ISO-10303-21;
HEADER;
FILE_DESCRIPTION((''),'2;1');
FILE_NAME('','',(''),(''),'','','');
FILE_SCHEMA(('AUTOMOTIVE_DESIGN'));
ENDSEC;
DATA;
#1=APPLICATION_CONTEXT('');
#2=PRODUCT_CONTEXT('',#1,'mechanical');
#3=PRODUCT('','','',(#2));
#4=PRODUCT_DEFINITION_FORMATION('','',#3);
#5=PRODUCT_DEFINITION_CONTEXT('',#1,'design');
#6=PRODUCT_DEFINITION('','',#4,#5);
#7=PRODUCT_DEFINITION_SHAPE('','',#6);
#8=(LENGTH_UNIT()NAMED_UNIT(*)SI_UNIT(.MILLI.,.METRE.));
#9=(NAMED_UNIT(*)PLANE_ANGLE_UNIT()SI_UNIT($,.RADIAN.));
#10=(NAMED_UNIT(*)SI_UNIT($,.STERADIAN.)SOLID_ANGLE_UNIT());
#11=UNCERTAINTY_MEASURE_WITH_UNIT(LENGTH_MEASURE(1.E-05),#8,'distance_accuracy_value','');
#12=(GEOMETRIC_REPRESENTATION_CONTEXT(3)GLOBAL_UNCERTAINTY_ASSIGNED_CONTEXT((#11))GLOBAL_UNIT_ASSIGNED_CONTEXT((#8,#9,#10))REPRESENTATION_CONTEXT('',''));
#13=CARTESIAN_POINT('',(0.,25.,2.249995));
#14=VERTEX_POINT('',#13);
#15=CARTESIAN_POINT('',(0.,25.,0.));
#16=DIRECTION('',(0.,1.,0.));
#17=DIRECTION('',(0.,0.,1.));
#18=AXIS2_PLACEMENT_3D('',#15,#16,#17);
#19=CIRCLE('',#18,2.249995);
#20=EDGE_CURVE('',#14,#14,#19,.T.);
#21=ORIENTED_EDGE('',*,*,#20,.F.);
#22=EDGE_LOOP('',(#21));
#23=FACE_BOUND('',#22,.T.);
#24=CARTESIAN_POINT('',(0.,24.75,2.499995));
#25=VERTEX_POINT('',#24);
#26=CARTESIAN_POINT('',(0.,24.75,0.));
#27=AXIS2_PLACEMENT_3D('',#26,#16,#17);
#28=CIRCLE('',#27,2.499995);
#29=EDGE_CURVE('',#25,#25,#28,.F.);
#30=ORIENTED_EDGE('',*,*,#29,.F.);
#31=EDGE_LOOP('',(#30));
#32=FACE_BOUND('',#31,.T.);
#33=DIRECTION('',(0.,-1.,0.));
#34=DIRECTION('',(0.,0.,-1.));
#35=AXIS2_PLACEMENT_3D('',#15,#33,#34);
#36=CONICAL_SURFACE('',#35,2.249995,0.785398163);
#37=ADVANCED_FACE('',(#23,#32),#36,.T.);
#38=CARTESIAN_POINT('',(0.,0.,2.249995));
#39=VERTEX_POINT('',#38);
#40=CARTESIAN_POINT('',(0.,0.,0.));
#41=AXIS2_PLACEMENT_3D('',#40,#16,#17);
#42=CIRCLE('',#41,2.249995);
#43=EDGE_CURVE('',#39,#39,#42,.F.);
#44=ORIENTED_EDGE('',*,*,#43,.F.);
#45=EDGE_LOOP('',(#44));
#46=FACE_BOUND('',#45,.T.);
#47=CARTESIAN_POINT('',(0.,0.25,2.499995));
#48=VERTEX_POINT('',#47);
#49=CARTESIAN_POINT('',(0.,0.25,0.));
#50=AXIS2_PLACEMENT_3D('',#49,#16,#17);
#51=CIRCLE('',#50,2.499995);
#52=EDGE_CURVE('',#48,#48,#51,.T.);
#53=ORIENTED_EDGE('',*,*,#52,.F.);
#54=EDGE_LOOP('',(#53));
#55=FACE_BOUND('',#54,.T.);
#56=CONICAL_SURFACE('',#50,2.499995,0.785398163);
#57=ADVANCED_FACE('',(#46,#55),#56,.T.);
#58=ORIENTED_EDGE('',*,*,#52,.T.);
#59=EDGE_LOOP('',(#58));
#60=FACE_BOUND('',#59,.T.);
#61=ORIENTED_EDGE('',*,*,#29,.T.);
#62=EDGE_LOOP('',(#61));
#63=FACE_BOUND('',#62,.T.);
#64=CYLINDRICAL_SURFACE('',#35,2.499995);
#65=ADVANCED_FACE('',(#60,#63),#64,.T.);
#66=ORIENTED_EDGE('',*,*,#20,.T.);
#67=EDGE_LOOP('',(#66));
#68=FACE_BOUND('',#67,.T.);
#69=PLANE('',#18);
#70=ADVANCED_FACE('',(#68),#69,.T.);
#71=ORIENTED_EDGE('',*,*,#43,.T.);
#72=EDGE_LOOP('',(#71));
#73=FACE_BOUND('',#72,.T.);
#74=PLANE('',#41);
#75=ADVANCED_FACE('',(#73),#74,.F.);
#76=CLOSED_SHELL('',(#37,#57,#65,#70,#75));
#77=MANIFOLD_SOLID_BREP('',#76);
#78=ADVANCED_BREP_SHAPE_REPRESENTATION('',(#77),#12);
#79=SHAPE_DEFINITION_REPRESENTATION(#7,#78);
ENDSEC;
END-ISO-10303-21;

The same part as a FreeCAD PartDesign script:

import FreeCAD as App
import Part
import Sketcher


def edges_at(feature, points):
    """Names of the edges that pass closest to the given points."""
    edges = feature.Shape.Edges
    near = lambda p: min(range(len(edges)), key=lambda i: edges[i].distToShape(Part.Vertex(*p))[0])
    return sorted({f"Edge{near(p) + 1}" for p in points})

doc = App.newDocument("Part")
params = doc.addObject("Spreadsheet::Sheet", "Params")
for row, (alias, value) in enumerate([
    ("pad1_length", "25 mm"),
    ("chamfer_size", "0.25 mm"),
], start=1):
    params.set(f"A{row}", alias)
    params.set(f"B{row}", "=" + value)
    params.setAlias(f"B{row}", alias)

body = doc.addObject("PartDesign::Body", "Body")

# Sketch on XZ plane
sketch1 = doc.addObject("Sketcher::SketchObject", "Sketch")
body.addObject(sketch1)
sketch1.AttachmentSupport = (doc.XZ_Plane, [""])
sketch1.MapMode = "FlatFace"
sketch1.addGeometry(Part.Circle(App.Vector(0, 0, 0), App.Vector(0, 0, 1), 2.499995), False)
sketch1.addConstraint([
    Sketcher.Constraint("Coincident", 0, 3, -1, 1),
    Sketcher.Constraint("Diameter", 0, 4.99999),
])
pad1 = doc.addObject("PartDesign::Pad", "Pad")
body.addObject(pad1)
pad1.Profile = sketch1
pad1.setExpression("Length", "Params.pad1_length")
pad1.Reversed = True
doc.recompute()

chamfer = doc.addObject("PartDesign::Chamfer", "Chamfer")
body.addObject(chamfer)
chamfer.Base = (pad1, edges_at(pad1, [(0, 0, -2.5), (0, 25, -2.5)]))
chamfer.setExpression("Size", "Params.chamfer_size")

doc.recompute()
